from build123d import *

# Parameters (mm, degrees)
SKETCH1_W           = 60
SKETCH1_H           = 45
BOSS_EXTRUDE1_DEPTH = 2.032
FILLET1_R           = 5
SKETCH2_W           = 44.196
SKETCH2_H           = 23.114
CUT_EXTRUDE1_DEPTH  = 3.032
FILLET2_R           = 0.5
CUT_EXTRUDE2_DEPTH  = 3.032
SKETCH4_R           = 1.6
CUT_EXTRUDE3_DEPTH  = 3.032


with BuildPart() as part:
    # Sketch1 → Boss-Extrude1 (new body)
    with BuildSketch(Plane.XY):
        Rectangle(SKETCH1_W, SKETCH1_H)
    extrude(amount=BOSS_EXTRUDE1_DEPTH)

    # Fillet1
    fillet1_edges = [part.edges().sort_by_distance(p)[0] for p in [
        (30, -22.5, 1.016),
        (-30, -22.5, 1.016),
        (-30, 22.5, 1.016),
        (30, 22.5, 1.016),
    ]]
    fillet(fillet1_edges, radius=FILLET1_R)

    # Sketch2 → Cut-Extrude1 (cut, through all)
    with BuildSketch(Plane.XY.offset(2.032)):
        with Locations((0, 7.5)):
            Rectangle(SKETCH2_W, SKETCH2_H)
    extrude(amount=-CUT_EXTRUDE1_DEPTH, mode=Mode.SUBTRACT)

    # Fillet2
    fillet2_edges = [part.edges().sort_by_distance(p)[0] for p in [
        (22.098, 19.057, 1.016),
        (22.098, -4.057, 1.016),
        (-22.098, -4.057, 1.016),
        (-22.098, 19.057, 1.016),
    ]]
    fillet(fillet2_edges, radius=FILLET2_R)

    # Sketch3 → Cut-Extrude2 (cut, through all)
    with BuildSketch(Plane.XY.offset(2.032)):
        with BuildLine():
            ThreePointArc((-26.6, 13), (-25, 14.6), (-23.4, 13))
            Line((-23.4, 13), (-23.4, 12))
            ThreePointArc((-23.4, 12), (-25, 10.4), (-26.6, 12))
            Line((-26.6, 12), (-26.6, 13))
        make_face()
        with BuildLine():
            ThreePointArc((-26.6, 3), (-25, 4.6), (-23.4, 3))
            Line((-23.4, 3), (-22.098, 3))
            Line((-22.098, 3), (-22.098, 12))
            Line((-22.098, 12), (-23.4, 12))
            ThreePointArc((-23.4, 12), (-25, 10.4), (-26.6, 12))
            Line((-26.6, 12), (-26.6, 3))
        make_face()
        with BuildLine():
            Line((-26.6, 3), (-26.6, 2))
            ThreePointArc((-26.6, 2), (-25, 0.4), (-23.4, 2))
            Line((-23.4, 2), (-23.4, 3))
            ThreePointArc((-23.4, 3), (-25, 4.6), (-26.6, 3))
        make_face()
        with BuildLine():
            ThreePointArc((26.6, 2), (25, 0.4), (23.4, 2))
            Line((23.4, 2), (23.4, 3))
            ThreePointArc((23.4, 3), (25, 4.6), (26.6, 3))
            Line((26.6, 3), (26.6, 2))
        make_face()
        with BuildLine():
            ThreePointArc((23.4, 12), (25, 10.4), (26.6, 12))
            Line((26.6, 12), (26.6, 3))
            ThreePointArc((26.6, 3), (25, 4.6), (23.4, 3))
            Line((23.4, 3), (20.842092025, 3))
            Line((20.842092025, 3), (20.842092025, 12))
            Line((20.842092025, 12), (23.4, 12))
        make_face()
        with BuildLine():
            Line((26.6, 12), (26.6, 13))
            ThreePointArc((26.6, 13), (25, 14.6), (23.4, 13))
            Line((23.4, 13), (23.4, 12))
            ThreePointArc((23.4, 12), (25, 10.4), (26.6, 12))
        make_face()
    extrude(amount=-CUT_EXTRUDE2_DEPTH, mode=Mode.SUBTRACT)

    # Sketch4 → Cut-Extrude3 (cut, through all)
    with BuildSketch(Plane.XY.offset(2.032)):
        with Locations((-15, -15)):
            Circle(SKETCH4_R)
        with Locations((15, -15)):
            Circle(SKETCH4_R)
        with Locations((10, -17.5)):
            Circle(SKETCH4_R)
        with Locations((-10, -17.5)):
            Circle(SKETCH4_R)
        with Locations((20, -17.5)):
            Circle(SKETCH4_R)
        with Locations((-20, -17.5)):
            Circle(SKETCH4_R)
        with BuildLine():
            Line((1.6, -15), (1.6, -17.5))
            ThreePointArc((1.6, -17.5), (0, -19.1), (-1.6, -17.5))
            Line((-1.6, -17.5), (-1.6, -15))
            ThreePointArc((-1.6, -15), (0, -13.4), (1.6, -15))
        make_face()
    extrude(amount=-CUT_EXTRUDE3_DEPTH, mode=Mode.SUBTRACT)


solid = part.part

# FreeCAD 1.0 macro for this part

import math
import FreeCAD as App
import Part
import Sketcher

V = App.Vector


def edges_at(feature, points):
    """Names of the edges that pass closest to the given points."""
    edges = feature.Shape.Edges
    near = lambda p: min(range(len(edges)), key=lambda i: edges[i].distToShape(Part.Vertex(*p))[0])
    return sorted({f"Edge{near(p) + 1}" for p in points})


def add_polygon(sketch, points):
    """Adds a closed chain of lines whose ends are joined by coincident constraints."""
    first, n = sketch.GeometryCount, len(points)
    for a, b in zip(points, points[1:] + points[:1]):
        sketch.addGeometry(Part.LineSegment(App.Vector(*a, 0), App.Vector(*b, 0)), False)
    for i in range(n):
        sketch.addConstraint(Sketcher.Constraint("Coincident", first + i, 2, first + (i + 1) % n, 1))

doc = App.newDocument("Part")
body = doc.addObject("PartDesign::Body", "Body")

sketch1 = doc.addObject("Sketcher::SketchObject", "Sketch")
body.addObject(sketch1)
sketch1.AttachmentSupport = (doc.XY_Plane, [""])
sketch1.MapMode = "FlatFace"
add_polygon(sketch1, [(-30, 22), (-30, -22), (30, -22), (30, 22)])
sketch1.addConstraint(Sketcher.Constraint("Vertical", 0))
sketch1.addConstraint(Sketcher.Constraint("Horizontal", 1))
sketch1.addConstraint(Sketcher.Constraint("Vertical", 2))
sketch1.addConstraint(Sketcher.Constraint("Horizontal", 3))
sketch1.addConstraint(Sketcher.Constraint("Symmetric", 0, 2, 2, 2, -1, 1))
sketch1.addConstraint(Sketcher.Constraint("DistanceX", 1, 1, 1, 2, 60.0))
sketch1.addConstraint(Sketcher.Constraint("DistanceY", 0, 2, 0, 1, 45.0))
pad1 = doc.addObject("PartDesign::Pad", "Pad")
body.addObject(pad1)
pad1.Profile = sketch1
pad1.Length = 2.032
doc.recompute()

fillet = doc.addObject("PartDesign::Fillet", "Fillet")
body.addObject(fillet)
fillet.Base = (pad1, edges_at(pad1, [
    (30, -22.5, 1.016),
    (-30, -22.5, 1.016),
    (-30, 22.5, 1.016),
    (30, 22.5, 1.016),
]))
fillet.Radius = 5

sketch2 = doc.addObject("Sketcher::SketchObject", "Sketch001")
body.addObject(sketch2)
sketch2.AttachmentSupport = (doc.XY_Plane, [""])
sketch2.MapMode = "FlatFace"
sketch2.AttachmentOffset = App.Placement(V(0, 0, 2.032), App.Rotation())
add_polygon(sketch2, [(-22, 19), (-22, -4), (22, -4), (22, 19)])
sketch2.addConstraint(Sketcher.Constraint("Vertical", 0))
sketch2.addConstraint(Sketcher.Constraint("Horizontal", 1))
sketch2.addConstraint(Sketcher.Constraint("Vertical", 2))
sketch2.addConstraint(Sketcher.Constraint("Horizontal", 3))
sketch2.addConstraint(Sketcher.Constraint("DistanceX", 1, 1, 1, 2, 44.196))
sketch2.addConstraint(Sketcher.Constraint("DistanceY", 0, 2, 0, 1, 23.114))
sketch2.addConstraint(Sketcher.Constraint("DistanceX", 0, 2, -1, 1, 22.098))
sketch2.addConstraint(Sketcher.Constraint("DistanceY", 0, 2, -1, 1, 4.057))
pocket1 = doc.addObject("PartDesign::Pocket", "Pocket")
body.addObject(pocket1)
pocket1.Profile = sketch2
pocket1.Type = "ThroughAll"
doc.recompute()

fillet2 = doc.addObject("PartDesign::Fillet", "Fillet001")
body.addObject(fillet2)
fillet2.Base = (pocket1, edges_at(pocket1, [
    (22.098, 19.057, 1.016),
    (22.098, -4.057, 1.016),
    (-22.098, -4.057, 1.016),
    (-22.098, 19.057, 1.016),
]))
fillet2.Radius = 0.5

sketch3 = doc.addObject("Sketcher::SketchObject", "Sketch002")
body.addObject(sketch3)
sketch3.AttachmentSupport = (doc.XY_Plane, [""])
sketch3.MapMode = "FlatFace"
sketch3.AttachmentOffset = App.Placement(V(0, 0, 2.032), App.Rotation())
sketch3.addGeometry(Part.ArcOfCircle(Part.Circle(V(-25, 13, 0), V(0, 0, 1), 1.6), math.radians(0), math.radians(180)), False)
sketch3.addGeometry(Part.LineSegment(V(-26.6, 13, 0), V(-26.6, 2, 0)), False)
sketch3.addGeometry(Part.ArcOfCircle(Part.Circle(V(-25, 2, 0), V(0, 0, 1), 1.6), math.radians(180), math.radians(360)), False)
sketch3.addGeometry(Part.LineSegment(V(-23.4, 2, 0), V(-23.4, 3, 0)), False)
sketch3.addGeometry(Part.LineSegment(V(-23.4, 3, 0), V(-22.1, 3, 0)), False)
sketch3.addGeometry(Part.LineSegment(V(-22.1, 3, 0), V(-22.1, 12, 0)), False)
sketch3.addGeometry(Part.LineSegment(V(-22.1, 12, 0), V(-23.4, 12, 0)), False)
sketch3.addGeometry(Part.LineSegment(V(-23.4, 12, 0), V(-23.4, 13, 0)), False)
sketch3.addGeometry(Part.ArcOfCircle(Part.Circle(V(25, 2, 0), V(0, 0, 1), 1.6), math.radians(180), math.radians(360)), False)
sketch3.addGeometry(Part.LineSegment(V(26.6, 2, 0), V(26.6, 13, 0)), False)
sketch3.addGeometry(Part.ArcOfCircle(Part.Circle(V(25, 13, 0), V(0, 0, 1), 1.6), math.radians(0), math.radians(180)), False)
sketch3.addGeometry(Part.LineSegment(V(23.4, 13, 0), V(23.4, 12, 0)), False)
sketch3.addGeometry(Part.LineSegment(V(23.4, 12, 0), V(20.8, 12, 0)), False)
sketch3.addGeometry(Part.LineSegment(V(20.8, 12, 0), V(20.8, 3, 0)), False)
sketch3.addGeometry(Part.LineSegment(V(20.8, 3, 0), V(23.4, 3, 0)), False)
sketch3.addGeometry(Part.LineSegment(V(23.4, 3, 0), V(23.4, 2, 0)), False)
sketch3.addConstraint(Sketcher.Constraint("Tangent", 0, 2, 1, 1))
sketch3.addConstraint(Sketcher.Constraint("Tangent", 1, 2, 2, 1))
sketch3.addConstraint(Sketcher.Constraint("Tangent", 2, 2, 3, 1))
sketch3.addConstraint(Sketcher.Constraint("Coincident", 3, 2, 4, 1))
sketch3.addConstraint(Sketcher.Constraint("Coincident", 4, 2, 5, 1))
sketch3.addConstraint(Sketcher.Constraint("Coincident", 5, 2, 6, 1))
sketch3.addConstraint(Sketcher.Constraint("Coincident", 6, 2, 7, 1))
sketch3.addConstraint(Sketcher.Constraint("Tangent", 7, 2, 0, 1))
sketch3.addConstraint(Sketcher.Constraint("Tangent", 8, 2, 9, 1))
sketch3.addConstraint(Sketcher.Constraint("Tangent", 9, 2, 10, 1))
sketch3.addConstraint(Sketcher.Constraint("Tangent", 10, 2, 11, 1))
sketch3.addConstraint(Sketcher.Constraint("Coincident", 11, 2, 12, 1))
sketch3.addConstraint(Sketcher.Constraint("Coincident", 12, 2, 13, 1))
sketch3.addConstraint(Sketcher.Constraint("Coincident", 13, 2, 14, 1))
sketch3.addConstraint(Sketcher.Constraint("Coincident", 14, 2, 15, 1))
sketch3.addConstraint(Sketcher.Constraint("Tangent", 15, 2, 8, 1))
sketch3.addConstraint(Sketcher.Constraint("Vertical", 1))
sketch3.addConstraint(Sketcher.Constraint("Vertical", 3))
sketch3.addConstraint(Sketcher.Constraint("Horizontal", 4))
sketch3.addConstraint(Sketcher.Constraint("Vertical", 5))
sketch3.addConstraint(Sketcher.Constraint("Horizontal", 6))
sketch3.addConstraint(Sketcher.Constraint("Vertical", 7))
sketch3.addConstraint(Sketcher.Constraint("Vertical", 9))
sketch3.addConstraint(Sketcher.Constraint("Vertical", 11))
sketch3.addConstraint(Sketcher.Constraint("Horizontal", 12))
sketch3.addConstraint(Sketcher.Constraint("Vertical", 13))
sketch3.addConstraint(Sketcher.Constraint("Horizontal", 14))
sketch3.addConstraint(Sketcher.Constraint("Vertical", 15))
sketch3.addConstraint(Sketcher.Constraint("Equal", 0, 2))
sketch3.addConstraint(Sketcher.Constraint("Equal", 2, 8))
sketch3.addConstraint(Sketcher.Constraint("Equal", 8, 10))
sketch3.addConstraint(Sketcher.Constraint("Symmetric", 2, 3, 8, 3, -2))
sketch3.addConstraint(Sketcher.Constraint("Horizontal", 0, 3, 10, 3))
sketch3.addConstraint(Sketcher.Constraint("Horizontal", 6, 2, 11, 2))
sketch3.addConstraint(Sketcher.Constraint("Horizontal", 4, 2, 13, 2))
sketch3.addConstraint(Sketcher.Constraint("Equal", 3, 7))
sketch3.addConstraint(Sketcher.Constraint("Radius", 0, 1.6))
sketch3.addConstraint(Sketcher.Constraint("DistanceY", 1, 2, 1, 1, 11.0))
sketch3.addConstraint(Sketcher.Constraint("DistanceY", 3, 1, 3, 2, 1.0))
sketch3.addConstraint(Sketcher.Constraint("DistanceX", 0, 3, -1, 1, 25.0))
sketch3.addConstraint(Sketcher.Constraint("DistanceY", -1, 1, 0, 3, 13.0))
sketch3.addConstraint(Sketcher.Constraint("DistanceX", 4, 1, 4, 2, 1.302))
sketch3.addConstraint(Sketcher.Constraint("DistanceX", 12, 2, 12, 1, 2.557908))
pocket2 = doc.addObject("PartDesign::Pocket", "Pocket001")
body.addObject(pocket2)
pocket2.Profile = sketch3
pocket2.Type = "ThroughAll"

sketch4 = doc.addObject("Sketcher::SketchObject", "Sketch003")
body.addObject(sketch4)
sketch4.AttachmentSupport = (doc.XY_Plane, [""])
sketch4.MapMode = "FlatFace"
sketch4.AttachmentOffset = App.Placement(V(0, 0, 2.032), App.Rotation())
sketch4.addGeometry(Part.Circle(V(-15, -15, 0), V(0, 0, 1), 1.6), False)
sketch4.addGeometry(Part.Circle(V(15, -15, 0), V(0, 0, 1), 1.6), False)
sketch4.addGeometry(Part.Circle(V(10, -17.5, 0), V(0, 0, 1), 1.6), False)
sketch4.addGeometry(Part.Circle(V(-10, -17.5, 0), V(0, 0, 1), 1.6), False)
sketch4.addGeometry(Part.Circle(V(20, -17.5, 0), V(0, 0, 1), 1.6), False)
sketch4.addGeometry(Part.Circle(V(-20, -17.5, 0), V(0, 0, 1), 1.6), False)
sketch4.addGeometry(Part.LineSegment(V(1.6, -17.5, 0), V(1.6, -15, 0)), False)
sketch4.addGeometry(Part.ArcOfCircle(Part.Circle(V(0, -15, 0), V(0, 0, 1), 1.6), math.radians(0), math.radians(180)), False)
sketch4.addGeometry(Part.LineSegment(V(-1.6, -15, 0), V(-1.6, -17.5, 0)), False)
sketch4.addGeometry(Part.ArcOfCircle(Part.Circle(V(0, -17.5, 0), V(0, 0, 1), 1.6), math.radians(180), math.radians(360)), False)
sketch4.addConstraint(Sketcher.Constraint("Tangent", 6, 2, 7, 1))
sketch4.addConstraint(Sketcher.Constraint("Tangent", 7, 2, 8, 1))
sketch4.addConstraint(Sketcher.Constraint("Tangent", 8, 2, 9, 1))
sketch4.addConstraint(Sketcher.Constraint("Tangent", 9, 2, 6, 1))
sketch4.addConstraint(Sketcher.Constraint("Vertical", 6))
sketch4.addConstraint(Sketcher.Constraint("Vertical", 8))
sketch4.addConstraint(Sketcher.Constraint("Equal", 0, 1))
sketch4.addConstraint(Sketcher.Constraint("Equal", 1, 2))
sketch4.addConstraint(Sketcher.Constraint("Equal", 2, 3))
sketch4.addConstraint(Sketcher.Constraint("Equal", 3, 4))
sketch4.addConstraint(Sketcher.Constraint("Equal", 4, 5))
sketch4.addConstraint(Sketcher.Constraint("Equal", 5, 7))
sketch4.addConstraint(Sketcher.Constraint("Symmetric", 0, 3, 1, 3, -2))
sketch4.addConstraint(Sketcher.Constraint("Symmetric", 2, 3, 3, 3, -2))
sketch4.addConstraint(Sketcher.Constraint("Symmetric", 4, 3, 5, 3, -2))
sketch4.addConstraint(Sketcher.Constraint("PointOnObject", 7, 3, -2))
sketch4.addConstraint(Sketcher.Constraint("Horizontal", 3, 3, 4, 3))
sketch4.addConstraint(Sketcher.Constraint("Horizontal", 1, 3, 7, 3))
sketch4.addConstraint(Sketcher.Constraint("Horizontal", 5, 3, 9, 3))
sketch4.addConstraint(Sketcher.Constraint("Diameter", 0, 3.2))
sketch4.addConstraint(Sketcher.Constraint("DistanceY", 6, 1, 6, 2, 2.5))
sketch4.addConstraint(Sketcher.Constraint("DistanceX", 0, 3, -1, 1, 15.0))
sketch4.addConstraint(Sketcher.Constraint("DistanceY", 0, 3, -1, 1, 15.0))
sketch4.addConstraint(Sketcher.Constraint("DistanceX", -1, 1, 2, 3, 10.0))
sketch4.addConstraint(Sketcher.Constraint("DistanceX", -1, 1, 4, 3, 20.0))
pocket3 = doc.addObject("PartDesign::Pocket", "Pocket002")
body.addObject(pocket3)
pocket3.Profile = sketch4
pocket3.Type = "ThroughAll"

doc.recompute()
